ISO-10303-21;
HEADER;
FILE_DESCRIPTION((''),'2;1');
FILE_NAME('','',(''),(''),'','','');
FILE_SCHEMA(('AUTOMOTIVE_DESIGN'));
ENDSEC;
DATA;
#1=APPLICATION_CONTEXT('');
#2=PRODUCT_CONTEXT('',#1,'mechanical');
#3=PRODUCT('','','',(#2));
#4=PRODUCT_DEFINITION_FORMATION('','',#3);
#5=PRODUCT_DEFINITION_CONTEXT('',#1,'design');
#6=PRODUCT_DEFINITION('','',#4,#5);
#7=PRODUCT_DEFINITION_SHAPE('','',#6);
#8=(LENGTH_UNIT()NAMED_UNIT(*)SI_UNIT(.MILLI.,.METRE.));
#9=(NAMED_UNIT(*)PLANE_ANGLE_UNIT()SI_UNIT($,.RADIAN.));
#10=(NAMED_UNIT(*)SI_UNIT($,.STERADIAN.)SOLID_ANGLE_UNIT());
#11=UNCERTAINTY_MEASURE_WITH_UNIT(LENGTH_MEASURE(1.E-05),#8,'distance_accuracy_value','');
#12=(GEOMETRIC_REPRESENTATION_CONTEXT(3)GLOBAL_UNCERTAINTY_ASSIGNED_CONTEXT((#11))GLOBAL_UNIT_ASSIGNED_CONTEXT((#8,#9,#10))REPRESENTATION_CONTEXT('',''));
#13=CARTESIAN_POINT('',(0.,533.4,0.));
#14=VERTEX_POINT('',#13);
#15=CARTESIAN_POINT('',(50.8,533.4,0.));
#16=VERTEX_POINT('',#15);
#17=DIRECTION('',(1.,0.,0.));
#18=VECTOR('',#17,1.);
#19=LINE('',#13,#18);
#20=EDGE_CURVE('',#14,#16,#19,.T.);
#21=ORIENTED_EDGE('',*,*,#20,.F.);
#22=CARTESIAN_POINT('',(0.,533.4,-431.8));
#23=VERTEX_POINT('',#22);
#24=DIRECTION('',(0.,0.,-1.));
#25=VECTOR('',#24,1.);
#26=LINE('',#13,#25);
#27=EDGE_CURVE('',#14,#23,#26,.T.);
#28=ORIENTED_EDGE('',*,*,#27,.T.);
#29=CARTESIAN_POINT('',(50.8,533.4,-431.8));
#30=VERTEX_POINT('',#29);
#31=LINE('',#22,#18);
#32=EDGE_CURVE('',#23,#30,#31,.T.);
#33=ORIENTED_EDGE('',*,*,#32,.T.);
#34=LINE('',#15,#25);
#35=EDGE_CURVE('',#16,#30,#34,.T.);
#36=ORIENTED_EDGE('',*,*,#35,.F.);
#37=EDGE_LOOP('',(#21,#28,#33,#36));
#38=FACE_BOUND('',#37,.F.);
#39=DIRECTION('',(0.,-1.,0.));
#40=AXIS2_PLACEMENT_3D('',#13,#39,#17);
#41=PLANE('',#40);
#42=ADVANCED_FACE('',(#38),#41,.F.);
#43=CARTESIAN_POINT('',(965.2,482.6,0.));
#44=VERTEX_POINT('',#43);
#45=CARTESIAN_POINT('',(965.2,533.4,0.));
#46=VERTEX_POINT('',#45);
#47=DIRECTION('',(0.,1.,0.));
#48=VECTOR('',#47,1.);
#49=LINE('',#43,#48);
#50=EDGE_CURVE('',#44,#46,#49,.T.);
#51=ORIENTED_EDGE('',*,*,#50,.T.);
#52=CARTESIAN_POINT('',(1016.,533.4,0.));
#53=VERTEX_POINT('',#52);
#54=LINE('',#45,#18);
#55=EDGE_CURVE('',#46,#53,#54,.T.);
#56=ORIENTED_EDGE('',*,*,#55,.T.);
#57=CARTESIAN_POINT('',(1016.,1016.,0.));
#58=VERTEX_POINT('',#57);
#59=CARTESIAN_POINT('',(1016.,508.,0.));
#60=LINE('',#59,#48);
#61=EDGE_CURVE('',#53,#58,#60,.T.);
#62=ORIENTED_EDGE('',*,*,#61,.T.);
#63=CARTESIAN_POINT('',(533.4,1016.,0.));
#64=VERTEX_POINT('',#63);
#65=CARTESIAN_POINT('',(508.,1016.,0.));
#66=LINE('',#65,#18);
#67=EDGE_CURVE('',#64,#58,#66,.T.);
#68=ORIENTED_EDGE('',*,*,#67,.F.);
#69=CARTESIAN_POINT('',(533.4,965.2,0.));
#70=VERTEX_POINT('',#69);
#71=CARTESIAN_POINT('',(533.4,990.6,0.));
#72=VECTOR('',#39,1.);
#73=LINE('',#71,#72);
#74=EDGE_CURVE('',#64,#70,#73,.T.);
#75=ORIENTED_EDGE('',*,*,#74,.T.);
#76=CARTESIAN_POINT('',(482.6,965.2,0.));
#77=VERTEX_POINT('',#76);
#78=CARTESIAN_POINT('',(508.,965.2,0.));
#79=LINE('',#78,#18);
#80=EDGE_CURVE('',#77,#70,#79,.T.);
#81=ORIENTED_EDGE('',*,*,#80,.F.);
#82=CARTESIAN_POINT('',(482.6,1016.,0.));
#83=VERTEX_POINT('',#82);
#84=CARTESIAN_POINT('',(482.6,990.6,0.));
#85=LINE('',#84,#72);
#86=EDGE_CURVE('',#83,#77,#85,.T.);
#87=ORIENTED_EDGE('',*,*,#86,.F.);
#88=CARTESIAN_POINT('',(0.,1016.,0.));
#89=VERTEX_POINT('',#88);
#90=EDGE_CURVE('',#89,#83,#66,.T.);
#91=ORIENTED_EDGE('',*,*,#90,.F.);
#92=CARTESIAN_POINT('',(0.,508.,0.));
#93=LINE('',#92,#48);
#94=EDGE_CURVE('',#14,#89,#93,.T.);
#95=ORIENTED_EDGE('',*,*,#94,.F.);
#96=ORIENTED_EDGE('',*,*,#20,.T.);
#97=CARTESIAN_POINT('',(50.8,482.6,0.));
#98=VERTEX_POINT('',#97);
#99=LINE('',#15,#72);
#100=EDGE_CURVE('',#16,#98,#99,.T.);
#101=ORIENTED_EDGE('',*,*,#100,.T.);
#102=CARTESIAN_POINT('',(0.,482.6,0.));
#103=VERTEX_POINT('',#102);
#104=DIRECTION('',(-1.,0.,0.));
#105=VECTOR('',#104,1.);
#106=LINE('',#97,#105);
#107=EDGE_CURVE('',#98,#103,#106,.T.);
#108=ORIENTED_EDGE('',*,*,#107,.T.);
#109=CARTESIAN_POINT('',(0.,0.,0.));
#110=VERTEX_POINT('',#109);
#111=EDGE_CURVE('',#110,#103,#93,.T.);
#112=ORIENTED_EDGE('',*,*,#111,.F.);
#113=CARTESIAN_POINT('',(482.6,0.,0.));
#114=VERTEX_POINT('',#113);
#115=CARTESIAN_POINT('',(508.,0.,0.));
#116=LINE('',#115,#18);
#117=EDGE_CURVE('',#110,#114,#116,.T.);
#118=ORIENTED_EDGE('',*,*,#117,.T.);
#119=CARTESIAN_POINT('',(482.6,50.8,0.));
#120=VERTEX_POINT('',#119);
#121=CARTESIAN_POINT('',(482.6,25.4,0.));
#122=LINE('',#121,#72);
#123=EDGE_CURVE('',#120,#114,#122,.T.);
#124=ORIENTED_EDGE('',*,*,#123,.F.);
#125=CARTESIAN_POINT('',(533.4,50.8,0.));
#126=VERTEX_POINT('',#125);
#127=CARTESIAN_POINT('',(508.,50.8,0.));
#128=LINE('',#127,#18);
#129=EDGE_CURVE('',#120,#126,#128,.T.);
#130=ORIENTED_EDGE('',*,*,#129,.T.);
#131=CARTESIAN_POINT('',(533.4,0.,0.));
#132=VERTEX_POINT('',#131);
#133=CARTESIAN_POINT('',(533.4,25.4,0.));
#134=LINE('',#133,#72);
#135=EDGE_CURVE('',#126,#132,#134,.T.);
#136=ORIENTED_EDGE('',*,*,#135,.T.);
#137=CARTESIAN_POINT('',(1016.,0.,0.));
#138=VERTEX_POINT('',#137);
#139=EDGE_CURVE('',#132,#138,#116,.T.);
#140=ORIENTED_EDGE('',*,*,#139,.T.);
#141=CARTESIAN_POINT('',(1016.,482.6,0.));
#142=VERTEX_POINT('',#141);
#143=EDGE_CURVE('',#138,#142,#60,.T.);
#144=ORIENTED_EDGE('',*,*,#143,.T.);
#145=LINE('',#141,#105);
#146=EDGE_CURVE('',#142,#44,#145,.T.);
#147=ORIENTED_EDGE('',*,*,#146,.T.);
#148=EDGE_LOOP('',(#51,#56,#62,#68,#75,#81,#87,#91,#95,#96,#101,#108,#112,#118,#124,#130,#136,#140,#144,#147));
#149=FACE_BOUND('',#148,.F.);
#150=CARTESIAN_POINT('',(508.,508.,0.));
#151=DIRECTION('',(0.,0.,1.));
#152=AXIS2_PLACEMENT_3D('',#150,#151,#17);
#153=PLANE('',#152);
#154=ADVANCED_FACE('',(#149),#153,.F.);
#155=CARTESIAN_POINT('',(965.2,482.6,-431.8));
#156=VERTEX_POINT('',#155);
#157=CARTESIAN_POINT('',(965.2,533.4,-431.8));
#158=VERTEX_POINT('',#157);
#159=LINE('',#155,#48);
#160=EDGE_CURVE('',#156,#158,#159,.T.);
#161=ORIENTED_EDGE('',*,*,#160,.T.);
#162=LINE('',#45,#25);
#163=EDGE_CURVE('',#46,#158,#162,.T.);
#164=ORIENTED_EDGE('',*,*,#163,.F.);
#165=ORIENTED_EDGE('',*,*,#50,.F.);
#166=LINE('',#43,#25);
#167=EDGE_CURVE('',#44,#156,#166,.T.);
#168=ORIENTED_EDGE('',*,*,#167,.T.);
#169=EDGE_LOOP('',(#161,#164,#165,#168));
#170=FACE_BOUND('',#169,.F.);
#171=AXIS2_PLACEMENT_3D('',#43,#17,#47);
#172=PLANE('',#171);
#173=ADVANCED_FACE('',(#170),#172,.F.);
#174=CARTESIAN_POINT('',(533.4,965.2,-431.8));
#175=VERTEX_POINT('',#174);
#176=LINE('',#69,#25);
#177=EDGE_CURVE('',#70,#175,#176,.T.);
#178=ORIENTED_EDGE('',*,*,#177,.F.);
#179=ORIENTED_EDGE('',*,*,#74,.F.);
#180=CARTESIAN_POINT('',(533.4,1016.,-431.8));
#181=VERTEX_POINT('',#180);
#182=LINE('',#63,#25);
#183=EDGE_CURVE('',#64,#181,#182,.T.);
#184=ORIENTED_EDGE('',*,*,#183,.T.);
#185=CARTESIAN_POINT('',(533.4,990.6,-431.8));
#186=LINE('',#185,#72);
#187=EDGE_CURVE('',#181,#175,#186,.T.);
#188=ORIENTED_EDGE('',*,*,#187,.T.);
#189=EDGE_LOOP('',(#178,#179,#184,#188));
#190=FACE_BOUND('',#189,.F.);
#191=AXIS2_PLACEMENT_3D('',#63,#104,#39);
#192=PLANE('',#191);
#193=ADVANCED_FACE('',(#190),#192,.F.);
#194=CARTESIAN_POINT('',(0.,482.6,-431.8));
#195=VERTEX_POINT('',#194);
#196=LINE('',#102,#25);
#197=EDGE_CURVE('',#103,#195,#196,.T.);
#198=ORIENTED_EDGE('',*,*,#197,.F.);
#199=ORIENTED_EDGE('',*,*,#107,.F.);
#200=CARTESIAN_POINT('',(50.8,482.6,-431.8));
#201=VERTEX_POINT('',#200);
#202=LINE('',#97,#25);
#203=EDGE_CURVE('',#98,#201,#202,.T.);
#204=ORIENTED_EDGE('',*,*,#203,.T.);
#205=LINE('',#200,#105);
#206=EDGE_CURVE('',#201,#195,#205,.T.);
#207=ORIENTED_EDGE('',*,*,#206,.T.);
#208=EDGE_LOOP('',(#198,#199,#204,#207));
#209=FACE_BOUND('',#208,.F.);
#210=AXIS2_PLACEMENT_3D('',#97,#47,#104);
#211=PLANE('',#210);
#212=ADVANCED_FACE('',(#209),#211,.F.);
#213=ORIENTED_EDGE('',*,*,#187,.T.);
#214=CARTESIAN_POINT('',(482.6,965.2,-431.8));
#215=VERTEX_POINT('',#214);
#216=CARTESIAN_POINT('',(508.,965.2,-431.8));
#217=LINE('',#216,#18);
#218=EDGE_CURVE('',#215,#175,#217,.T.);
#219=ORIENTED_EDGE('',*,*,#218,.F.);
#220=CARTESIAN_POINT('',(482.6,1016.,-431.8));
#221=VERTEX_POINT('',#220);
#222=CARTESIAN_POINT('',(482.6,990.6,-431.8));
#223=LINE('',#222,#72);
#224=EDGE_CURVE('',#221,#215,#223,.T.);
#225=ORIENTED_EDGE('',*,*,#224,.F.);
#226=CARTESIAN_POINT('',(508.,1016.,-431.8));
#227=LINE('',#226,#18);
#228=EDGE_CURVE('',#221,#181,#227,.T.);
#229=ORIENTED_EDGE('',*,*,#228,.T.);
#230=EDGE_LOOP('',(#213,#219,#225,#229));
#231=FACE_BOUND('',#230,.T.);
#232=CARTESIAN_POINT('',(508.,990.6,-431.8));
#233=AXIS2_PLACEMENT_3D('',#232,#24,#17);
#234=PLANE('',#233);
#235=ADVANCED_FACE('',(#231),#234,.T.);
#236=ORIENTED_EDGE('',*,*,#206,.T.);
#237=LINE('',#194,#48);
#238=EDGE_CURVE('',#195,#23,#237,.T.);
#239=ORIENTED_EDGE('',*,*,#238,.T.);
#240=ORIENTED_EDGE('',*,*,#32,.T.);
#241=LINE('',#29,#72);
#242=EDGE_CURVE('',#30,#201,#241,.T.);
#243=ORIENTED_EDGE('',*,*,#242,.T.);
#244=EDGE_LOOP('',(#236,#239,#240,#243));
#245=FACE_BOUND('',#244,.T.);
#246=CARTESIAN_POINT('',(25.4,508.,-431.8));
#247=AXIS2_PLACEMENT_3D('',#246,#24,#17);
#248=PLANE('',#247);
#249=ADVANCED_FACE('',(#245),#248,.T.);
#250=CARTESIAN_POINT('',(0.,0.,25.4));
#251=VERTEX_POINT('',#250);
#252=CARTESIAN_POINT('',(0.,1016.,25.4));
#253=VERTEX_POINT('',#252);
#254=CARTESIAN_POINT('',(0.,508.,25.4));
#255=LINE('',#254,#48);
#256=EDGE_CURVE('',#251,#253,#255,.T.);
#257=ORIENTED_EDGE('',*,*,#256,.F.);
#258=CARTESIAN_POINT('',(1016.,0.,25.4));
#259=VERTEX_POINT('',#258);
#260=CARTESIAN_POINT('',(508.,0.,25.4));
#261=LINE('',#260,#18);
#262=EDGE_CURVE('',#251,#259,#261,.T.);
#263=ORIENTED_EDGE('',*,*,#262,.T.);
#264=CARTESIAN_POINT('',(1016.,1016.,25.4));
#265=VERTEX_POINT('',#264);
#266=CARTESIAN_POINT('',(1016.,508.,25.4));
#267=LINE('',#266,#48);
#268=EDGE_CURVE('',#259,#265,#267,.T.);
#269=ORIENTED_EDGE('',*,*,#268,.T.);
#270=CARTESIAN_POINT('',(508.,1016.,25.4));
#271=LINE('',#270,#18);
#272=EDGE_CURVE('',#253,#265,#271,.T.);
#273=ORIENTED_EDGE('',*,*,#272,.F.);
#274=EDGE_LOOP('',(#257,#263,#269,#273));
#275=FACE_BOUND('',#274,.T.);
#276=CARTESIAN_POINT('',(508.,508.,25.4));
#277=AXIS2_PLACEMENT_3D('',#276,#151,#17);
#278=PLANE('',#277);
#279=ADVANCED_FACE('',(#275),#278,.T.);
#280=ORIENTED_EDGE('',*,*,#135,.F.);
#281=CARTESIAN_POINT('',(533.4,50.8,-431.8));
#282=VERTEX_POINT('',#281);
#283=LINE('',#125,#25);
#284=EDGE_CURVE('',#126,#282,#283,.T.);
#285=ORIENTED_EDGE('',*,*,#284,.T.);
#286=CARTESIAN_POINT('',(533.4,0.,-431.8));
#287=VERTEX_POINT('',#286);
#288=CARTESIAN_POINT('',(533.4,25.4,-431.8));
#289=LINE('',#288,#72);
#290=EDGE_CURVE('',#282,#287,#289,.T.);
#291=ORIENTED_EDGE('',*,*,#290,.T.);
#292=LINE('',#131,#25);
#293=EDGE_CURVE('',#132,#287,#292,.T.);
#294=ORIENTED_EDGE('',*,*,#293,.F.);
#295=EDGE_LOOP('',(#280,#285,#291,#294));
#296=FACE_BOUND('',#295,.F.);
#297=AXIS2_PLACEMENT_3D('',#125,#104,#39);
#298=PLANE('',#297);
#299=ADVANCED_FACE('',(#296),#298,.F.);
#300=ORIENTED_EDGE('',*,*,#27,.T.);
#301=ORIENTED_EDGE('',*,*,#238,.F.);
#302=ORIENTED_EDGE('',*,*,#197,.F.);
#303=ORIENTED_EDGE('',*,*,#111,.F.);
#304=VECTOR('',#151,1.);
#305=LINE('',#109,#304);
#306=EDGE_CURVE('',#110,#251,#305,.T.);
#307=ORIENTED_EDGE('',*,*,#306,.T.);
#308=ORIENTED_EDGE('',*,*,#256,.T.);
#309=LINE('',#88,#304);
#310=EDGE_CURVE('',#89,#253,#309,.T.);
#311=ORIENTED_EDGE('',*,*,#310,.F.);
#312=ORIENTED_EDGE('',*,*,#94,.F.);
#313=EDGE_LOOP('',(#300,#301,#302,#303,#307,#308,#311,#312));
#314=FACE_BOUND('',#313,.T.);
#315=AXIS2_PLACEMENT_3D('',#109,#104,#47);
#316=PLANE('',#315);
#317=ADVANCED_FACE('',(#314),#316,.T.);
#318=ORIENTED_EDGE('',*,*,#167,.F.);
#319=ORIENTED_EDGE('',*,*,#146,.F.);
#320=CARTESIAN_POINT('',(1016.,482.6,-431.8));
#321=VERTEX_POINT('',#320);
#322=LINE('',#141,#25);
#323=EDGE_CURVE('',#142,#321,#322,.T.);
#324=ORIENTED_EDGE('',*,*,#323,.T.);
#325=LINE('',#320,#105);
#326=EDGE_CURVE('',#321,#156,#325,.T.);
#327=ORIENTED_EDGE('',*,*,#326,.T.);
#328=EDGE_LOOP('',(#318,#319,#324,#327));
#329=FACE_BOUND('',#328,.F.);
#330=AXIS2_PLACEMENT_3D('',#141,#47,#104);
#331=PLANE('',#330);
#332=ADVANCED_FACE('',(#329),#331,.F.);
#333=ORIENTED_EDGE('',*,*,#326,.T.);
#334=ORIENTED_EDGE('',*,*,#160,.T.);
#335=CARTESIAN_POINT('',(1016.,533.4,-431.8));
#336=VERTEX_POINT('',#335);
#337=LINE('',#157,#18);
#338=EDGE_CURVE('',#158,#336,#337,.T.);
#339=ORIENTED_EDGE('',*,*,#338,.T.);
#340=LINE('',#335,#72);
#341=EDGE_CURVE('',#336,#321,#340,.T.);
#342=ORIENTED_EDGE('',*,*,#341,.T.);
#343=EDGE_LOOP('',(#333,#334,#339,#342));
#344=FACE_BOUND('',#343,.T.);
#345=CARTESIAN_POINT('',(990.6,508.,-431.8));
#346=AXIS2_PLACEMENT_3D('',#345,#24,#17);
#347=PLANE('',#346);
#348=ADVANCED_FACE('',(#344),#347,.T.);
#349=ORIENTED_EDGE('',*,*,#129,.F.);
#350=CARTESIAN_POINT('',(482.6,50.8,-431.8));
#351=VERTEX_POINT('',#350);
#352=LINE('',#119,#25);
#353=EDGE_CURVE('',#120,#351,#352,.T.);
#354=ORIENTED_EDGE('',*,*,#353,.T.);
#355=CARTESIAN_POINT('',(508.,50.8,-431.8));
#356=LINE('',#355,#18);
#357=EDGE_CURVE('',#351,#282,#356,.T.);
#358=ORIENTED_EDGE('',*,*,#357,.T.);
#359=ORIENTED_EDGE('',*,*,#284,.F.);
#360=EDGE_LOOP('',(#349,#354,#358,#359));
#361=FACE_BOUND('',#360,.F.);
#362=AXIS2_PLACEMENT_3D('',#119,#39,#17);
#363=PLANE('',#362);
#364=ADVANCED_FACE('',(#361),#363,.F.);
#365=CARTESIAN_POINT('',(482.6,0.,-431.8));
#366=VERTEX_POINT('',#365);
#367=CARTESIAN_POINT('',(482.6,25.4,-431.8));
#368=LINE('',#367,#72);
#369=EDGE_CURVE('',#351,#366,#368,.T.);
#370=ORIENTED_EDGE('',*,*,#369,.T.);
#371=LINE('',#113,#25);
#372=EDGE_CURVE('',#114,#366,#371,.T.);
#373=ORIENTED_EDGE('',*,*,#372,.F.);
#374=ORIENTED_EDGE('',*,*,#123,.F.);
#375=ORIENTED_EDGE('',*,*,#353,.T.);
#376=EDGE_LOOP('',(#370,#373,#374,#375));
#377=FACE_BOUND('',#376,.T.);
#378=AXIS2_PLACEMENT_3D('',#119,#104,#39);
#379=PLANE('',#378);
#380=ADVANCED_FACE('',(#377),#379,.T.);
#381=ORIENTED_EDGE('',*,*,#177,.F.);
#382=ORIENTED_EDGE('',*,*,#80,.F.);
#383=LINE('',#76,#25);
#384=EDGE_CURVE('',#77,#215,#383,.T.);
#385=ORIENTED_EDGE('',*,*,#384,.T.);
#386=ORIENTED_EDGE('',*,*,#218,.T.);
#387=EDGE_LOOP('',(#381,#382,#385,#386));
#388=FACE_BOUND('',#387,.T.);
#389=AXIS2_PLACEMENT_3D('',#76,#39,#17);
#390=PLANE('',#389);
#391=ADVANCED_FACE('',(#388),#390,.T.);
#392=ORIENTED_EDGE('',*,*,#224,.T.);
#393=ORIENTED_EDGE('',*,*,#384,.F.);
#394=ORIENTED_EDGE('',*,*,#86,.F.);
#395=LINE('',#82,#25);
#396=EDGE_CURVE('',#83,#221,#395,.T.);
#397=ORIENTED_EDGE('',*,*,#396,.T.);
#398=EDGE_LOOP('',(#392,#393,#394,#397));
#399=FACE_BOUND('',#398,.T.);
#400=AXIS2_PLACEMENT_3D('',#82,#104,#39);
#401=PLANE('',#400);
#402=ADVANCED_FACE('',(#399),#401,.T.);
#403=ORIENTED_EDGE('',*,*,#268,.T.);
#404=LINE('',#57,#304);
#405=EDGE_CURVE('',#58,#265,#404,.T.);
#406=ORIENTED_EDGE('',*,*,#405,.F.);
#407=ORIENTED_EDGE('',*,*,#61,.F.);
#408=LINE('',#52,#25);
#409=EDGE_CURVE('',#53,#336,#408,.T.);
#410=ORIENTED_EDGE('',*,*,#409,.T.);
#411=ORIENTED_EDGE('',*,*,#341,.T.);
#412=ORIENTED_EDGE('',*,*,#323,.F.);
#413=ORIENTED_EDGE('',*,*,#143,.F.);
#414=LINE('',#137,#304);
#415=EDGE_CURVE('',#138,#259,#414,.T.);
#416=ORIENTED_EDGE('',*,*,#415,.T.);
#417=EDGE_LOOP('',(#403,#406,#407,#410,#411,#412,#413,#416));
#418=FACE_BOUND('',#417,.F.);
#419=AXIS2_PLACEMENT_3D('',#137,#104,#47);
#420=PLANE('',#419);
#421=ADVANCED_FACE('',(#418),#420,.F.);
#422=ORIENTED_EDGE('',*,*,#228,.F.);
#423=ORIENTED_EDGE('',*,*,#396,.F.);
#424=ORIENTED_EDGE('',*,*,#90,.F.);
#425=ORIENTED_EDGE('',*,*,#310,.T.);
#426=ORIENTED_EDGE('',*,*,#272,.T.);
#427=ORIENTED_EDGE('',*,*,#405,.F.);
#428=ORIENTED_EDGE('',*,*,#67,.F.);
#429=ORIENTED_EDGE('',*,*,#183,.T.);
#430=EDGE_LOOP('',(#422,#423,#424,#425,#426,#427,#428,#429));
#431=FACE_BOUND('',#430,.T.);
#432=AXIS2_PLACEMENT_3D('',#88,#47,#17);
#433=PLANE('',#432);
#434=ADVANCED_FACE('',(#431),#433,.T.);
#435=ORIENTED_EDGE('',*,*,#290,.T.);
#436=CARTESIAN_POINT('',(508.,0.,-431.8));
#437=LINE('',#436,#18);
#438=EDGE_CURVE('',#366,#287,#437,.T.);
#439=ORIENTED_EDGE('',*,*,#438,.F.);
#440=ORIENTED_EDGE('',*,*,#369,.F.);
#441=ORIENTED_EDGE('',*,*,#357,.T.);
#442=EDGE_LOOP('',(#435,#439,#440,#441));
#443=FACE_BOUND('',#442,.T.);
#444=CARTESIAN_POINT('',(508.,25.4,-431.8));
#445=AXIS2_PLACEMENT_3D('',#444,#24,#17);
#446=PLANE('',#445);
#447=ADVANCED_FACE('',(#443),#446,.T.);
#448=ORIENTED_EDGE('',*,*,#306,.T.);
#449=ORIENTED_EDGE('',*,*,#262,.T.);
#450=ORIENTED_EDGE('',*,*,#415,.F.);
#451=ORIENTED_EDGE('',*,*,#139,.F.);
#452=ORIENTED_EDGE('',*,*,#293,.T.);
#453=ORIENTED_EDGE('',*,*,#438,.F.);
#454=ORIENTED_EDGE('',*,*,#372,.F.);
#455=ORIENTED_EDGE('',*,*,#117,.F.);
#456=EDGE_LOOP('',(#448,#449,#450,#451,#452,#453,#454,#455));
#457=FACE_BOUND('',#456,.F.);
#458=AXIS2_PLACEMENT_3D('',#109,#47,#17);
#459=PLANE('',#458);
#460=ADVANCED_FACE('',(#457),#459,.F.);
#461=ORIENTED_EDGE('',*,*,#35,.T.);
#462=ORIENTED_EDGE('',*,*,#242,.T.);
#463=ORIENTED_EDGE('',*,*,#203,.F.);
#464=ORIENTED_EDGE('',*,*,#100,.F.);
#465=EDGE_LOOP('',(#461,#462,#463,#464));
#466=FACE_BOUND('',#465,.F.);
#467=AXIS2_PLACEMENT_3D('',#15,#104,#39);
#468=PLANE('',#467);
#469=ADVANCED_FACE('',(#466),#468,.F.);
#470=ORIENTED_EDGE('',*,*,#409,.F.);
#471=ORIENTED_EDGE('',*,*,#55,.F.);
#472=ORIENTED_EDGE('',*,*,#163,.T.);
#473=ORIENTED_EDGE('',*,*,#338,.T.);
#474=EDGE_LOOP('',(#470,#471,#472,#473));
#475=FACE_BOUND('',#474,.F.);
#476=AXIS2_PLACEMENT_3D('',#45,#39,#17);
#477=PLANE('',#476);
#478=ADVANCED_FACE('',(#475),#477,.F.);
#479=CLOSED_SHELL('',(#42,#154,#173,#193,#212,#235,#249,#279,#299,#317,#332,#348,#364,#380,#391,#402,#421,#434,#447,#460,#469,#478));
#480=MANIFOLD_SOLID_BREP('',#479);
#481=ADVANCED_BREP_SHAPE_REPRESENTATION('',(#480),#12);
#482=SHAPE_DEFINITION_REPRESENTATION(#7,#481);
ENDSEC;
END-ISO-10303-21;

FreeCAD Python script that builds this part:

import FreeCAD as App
import Part
import Sketcher
Q = App.Units.Quantity


def add_polygon(sketch, points):
    """Adds a closed chain of lines whose ends are joined by coincident constraints."""
    first, n = sketch.GeometryCount, len(points)
    for a, b in zip(points, points[1:] + points[:1]):
        sketch.addGeometry(Part.LineSegment(App.Vector(*a, 0), App.Vector(*b, 0)), False)
    for i in range(n):
        sketch.addConstraint(Sketcher.Constraint("Coincident", first + i, 2, first + (i + 1) % n, 1))

doc = App.newDocument("Part")
body = doc.addObject("PartDesign::Body", "Body")

sketch1 = doc.addObject("Sketcher::SketchObject", "Sketch")
body.addObject(sketch1)
sketch1.AttachmentSupport = (doc.XY_Plane, [""])
sketch1.MapMode = "FlatFace"
add_polygon(sketch1, [(0, 1016), (0, 0), (1016, 0), (1016, 1016)])
sketch1.addConstraint([
    Sketcher.Constraint("Vertical", 0),
    Sketcher.Constraint("Horizontal", 1),
    Sketcher.Constraint("Vertical", 2),
    Sketcher.Constraint("Horizontal", 3),
    Sketcher.Constraint("Coincident", 0, 2, -1, 1),
    Sketcher.Constraint("Equal", 3, 0),
    Sketcher.Constraint("DistanceX", 1, 1, 1, 2, Q("40 in")),
])
pad1 = doc.addObject("PartDesign::Pad", "Pad")
body.addObject(pad1)
pad1.Profile = sketch1
pad1.Length = Q("1 in")

sketch2 = doc.addObject("Sketcher::SketchObject", "Sketch001")
body.addObject(sketch2)
sketch2.AttachmentSupport = (doc.XY_Plane, [""])
sketch2.MapMode = "FlatFace"
add_polygon(sketch2, [(51, 483), (0, 483), (0, 533), (51, 533)])
add_polygon(sketch2, [(1016, 533), (1016, 483), (965, 483), (965, 533)])
add_polygon(sketch2, [(483, 965), (483, 1016), (533, 1016), (533, 965)])
add_polygon(sketch2, [(483, 0), (483, 51), (533, 51), (533, 0)])
sketch2.addConstraint([
    Sketcher.Constraint("Horizontal", 0),
    Sketcher.Constraint("Vertical", 1),
    Sketcher.Constraint("Horizontal", 2),
    Sketcher.Constraint("Vertical", 3),
    Sketcher.Constraint("Vertical", 4),
    Sketcher.Constraint("Horizontal", 5),
    Sketcher.Constraint("Vertical", 6),
    Sketcher.Constraint("Horizontal", 7),
    Sketcher.Constraint("Vertical", 8),
    Sketcher.Constraint("Horizontal", 9),
    Sketcher.Constraint("Vertical", 10),
    Sketcher.Constraint("Horizontal", 11),
    Sketcher.Constraint("Vertical", 12),
    Sketcher.Constraint("Horizontal", 13),
    Sketcher.Constraint("Vertical", 14),
    Sketcher.Constraint("Horizontal", 15),
    Sketcher.Constraint("PointOnObject", 0, 2, -2),
    Sketcher.Constraint("PointOnObject", 14, 2, -1),
    Sketcher.Constraint("Horizontal", 3, 2, 4, 2),
    Sketcher.Constraint("Horizontal", 2, 2, 6, 2),
    Sketcher.Constraint("Vertical", 11, 2, 12, 2),
    Sketcher.Constraint("Vertical", 10, 2, 13, 2),
    Sketcher.Constraint("Equal", 2, 5),
    Sketcher.Constraint("Equal", 7, 9),
    Sketcher.Constraint("Equal", 15, 1),
    Sketcher.Constraint("Equal", 6, 8),
    Sketcher.Constraint("Equal", 10, 12),
    Sketcher.Constraint("DistanceX", 0, 2, 0, 1, Q("2 in")),
    Sketcher.Constraint("DistanceY", -1, 1, 0, 2, Q("19 in")),
    Sketcher.Constraint("DistanceX", -1, 1, 4, 2, Q("40 in")),
    Sketcher.Constraint("DistanceX", -1, 1, 8, 2, Q("19 in")),
    Sketcher.Constraint("DistanceY", -1, 1, 8, 2, Q("40 in")),
])
pad2 = doc.addObject("PartDesign::Pad", "Pad001")
body.addObject(pad2)
pad2.Profile = sketch2
pad2.Length = Q("17 in")
pad2.Reversed = True

doc.recompute()
